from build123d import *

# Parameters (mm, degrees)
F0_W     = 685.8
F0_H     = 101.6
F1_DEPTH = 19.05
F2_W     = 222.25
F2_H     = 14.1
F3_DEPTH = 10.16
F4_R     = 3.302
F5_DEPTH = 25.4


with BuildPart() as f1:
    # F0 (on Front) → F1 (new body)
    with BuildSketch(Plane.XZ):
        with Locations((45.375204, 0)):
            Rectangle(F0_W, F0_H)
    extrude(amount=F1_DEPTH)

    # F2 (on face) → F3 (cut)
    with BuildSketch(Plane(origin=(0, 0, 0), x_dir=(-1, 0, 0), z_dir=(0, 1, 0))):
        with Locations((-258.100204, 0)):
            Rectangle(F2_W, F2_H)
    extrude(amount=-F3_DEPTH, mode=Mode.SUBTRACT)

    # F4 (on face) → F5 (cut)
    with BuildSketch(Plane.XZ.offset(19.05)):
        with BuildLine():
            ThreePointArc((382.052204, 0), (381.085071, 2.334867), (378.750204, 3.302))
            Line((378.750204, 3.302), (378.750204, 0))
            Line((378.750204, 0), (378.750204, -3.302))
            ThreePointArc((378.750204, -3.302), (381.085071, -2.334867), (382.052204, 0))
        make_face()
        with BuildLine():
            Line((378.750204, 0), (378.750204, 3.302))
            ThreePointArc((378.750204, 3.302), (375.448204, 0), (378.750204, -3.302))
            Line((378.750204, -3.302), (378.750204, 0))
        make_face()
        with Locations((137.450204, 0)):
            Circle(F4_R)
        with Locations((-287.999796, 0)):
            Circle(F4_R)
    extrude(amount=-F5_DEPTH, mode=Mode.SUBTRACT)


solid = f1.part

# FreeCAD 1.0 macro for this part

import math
import FreeCAD as App
import Part
import Sketcher

V = App.Vector
Q = App.Units.Quantity

doc = App.newDocument("Part")
body = doc.addObject("PartDesign::Body", "Body")

sketch1 = doc.addObject("Sketcher::SketchObject", "Sketch")
body.addObject(sketch1)
sketch1.AttachmentSupport = (doc.XZ_Plane, [""])
sketch1.MapMode = "FlatFace"
sketch1.addGeometry([
    Part.LineSegment(V(-298, 51, 0), V(-298, -51, 0)),
    Part.LineSegment(V(-298, -51, 0), V(388, -51, 0)),
    Part.LineSegment(V(388, -51, 0), V(388, 51, 0)),
    Part.LineSegment(V(388, 51, 0), V(-298, 51, 0)),
], False)
sketch1.addConstraint([
    Sketcher.Constraint("Coincident", 0, 2, 1, 1),
    Sketcher.Constraint("Coincident", 1, 2, 2, 1),
    Sketcher.Constraint("Coincident", 2, 2, 3, 1),
    Sketcher.Constraint("Coincident", 3, 2, 0, 1),
    Sketcher.Constraint("Vertical", 0),
    Sketcher.Constraint("Horizontal", 1),
    Sketcher.Constraint("Vertical", 2),
    Sketcher.Constraint("Horizontal", 3),
    Sketcher.Constraint("DistanceX", 1, 1, 1, 2, Q("27 in")),
    Sketcher.Constraint("DistanceY", 0, 2, 0, 1, Q("4 in")),
    Sketcher.Constraint("DistanceY", 0, 2, -1, 1, Q("2 in")),
    Sketcher.Constraint("DistanceX", 0, 2, -1, 1, Q("297.524796 mm")),
])
pad1 = doc.addObject("PartDesign::Pad", "Pad")
body.addObject(pad1)
pad1.Profile = sketch1
pad1.Length = Q("0.75 in")

sketch2 = doc.addObject("Sketcher::SketchObject", "Sketch001")
body.addObject(sketch2)
sketch2.AttachmentSupport = (doc.XZ_Plane, [""])
sketch2.MapMode = "FlatFace"
sketch2.addGeometry([
    Part.LineSegment(V(369, 7, 0), V(369, -7, 0)),
    Part.LineSegment(V(369, -7, 0), V(147, -7, 0)),
    Part.LineSegment(V(147, -7, 0), V(147, 7, 0)),
    Part.LineSegment(V(147, 7, 0), V(369, 7, 0)),
], False)
sketch2.addConstraint([
    Sketcher.Constraint("Coincident", 0, 2, 1, 1),
    Sketcher.Constraint("Coincident", 1, 2, 2, 1),
    Sketcher.Constraint("Coincident", 2, 2, 3, 1),
    Sketcher.Constraint("Coincident", 3, 2, 0, 1),
    Sketcher.Constraint("Vertical", 0),
    Sketcher.Constraint("Horizontal", 1),
    Sketcher.Constraint("Vertical", 2),
    Sketcher.Constraint("Horizontal", 3),
    Sketcher.Constraint("DistanceX", 1, 2, 1, 1, Q("8.75 in")),
    Sketcher.Constraint("DistanceY", 0, 2, 0, 1, Q("14.1 mm")),
    Sketcher.Constraint("DistanceY", 0, 2, -1, 1, Q("7.05 mm")),
    Sketcher.Constraint("DistanceX", -1, 1, 0, 2, Q("369.225204 mm")),
])
pocket1 = doc.addObject("PartDesign::Pocket", "Pocket")
body.addObject(pocket1)
pocket1.Profile = sketch2
pocket1.Length = Q("0.4 in")
pocket1.Reversed = True

sketch3 = doc.addObject("Sketcher::SketchObject", "Sketch002")
body.addObject(sketch3)
sketch3.AttachmentSupport = (doc.XZ_Plane, [""])
sketch3.MapMode = "FlatFace"
sketch3.AttachmentOffset = App.Placement(V(0, 0, 0.75 * 25.4), App.Rotation())
sketch3.addGeometry([
    Part.ArcOfCircle(Part.Circle(V(378.8, 0, 0), V(0, 0, 1), 3.3), math.radians(0), math.radians(90)),
    Part.ArcOfCircle(Part.Circle(V(378.8, 0, 0), V(0, 0, 1), 3.3), math.radians(90), math.radians(270)),
    Part.ArcOfCircle(Part.Circle(V(378.8, 0, 0), V(0, 0, 1), 3.3), math.radians(-90), math.radians(0)),
    Part.Circle(V(137.5, 0, 0), V(0, 0, 1), 3.3),
    Part.Circle(V(-288, 0, 0), V(0, 0, 1), 3.3),
], False)
sketch3.addConstraint([
    Sketcher.Constraint("Tangent", 0, 2, 1, 1),
    Sketcher.Constraint("Tangent", 1, 2, 2, 1),
    Sketcher.Constraint("Tangent", 2, 2, 0, 1),
    Sketcher.Constraint("Equal", 2, 3),
    Sketcher.Constraint("Equal", 3, 4),
    Sketcher.Constraint("Symmetric", 0, 2, 1, 2, -1),
    Sketcher.Constraint("PointOnObject", 3, 3, -1),
    Sketcher.Constraint("PointOnObject", 4, 3, -1),
    Sketcher.Constraint("PointOnObject", 2, 2, -1),
    Sketcher.Constraint("Vertical", 2, 3, 0, 2),
    Sketcher.Constraint("Diameter", 3, Q("0.26 in")),
    Sketcher.Constraint("DistanceX", 3, 3, 1, 3, Q("9.5 in")),
    Sketcher.Constraint("DistanceX", 4, 3, 3, 3, Q("16.75 in")),
    Sketcher.Constraint("DistanceX", -1, 1, 0, 3, Q("378.750205 mm")),
])
pocket2 = doc.addObject("PartDesign::Pocket", "Pocket001")
body.addObject(pocket2)
pocket2.Profile = sketch3
pocket2.Length = Q("1 in")

doc.recompute()
